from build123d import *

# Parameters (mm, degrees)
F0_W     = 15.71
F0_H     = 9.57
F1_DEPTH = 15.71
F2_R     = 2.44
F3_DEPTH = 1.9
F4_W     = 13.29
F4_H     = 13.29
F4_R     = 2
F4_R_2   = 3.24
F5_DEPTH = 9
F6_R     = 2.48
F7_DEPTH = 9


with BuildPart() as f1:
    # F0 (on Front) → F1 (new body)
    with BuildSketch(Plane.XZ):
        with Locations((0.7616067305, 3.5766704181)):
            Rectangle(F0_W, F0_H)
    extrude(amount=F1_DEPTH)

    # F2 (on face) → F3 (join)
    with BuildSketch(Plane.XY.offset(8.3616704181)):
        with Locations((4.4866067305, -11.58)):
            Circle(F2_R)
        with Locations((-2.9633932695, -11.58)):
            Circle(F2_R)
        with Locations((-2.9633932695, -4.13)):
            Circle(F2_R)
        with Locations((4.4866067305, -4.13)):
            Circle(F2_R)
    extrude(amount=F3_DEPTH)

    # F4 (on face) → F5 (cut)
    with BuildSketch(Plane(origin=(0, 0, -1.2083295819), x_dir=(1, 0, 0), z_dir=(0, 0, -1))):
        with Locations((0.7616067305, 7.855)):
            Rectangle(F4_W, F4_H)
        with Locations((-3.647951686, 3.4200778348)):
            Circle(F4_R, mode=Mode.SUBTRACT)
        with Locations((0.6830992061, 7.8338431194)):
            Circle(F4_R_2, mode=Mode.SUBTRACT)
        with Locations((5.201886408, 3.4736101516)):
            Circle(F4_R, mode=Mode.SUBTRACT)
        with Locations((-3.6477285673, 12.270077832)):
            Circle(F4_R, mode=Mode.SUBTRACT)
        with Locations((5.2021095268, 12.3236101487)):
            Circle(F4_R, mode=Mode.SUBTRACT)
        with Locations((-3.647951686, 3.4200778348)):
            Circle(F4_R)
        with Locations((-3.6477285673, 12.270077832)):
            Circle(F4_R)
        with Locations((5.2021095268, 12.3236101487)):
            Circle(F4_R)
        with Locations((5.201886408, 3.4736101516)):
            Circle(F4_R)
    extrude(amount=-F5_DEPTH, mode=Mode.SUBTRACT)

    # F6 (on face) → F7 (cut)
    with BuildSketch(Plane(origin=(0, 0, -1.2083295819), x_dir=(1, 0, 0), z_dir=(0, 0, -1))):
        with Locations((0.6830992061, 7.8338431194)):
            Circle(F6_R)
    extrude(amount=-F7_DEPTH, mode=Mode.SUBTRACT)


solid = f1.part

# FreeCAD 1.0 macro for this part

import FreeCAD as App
import Part
import Sketcher
from FreeCAD import Vector
Q = App.Units.Quantity

doc = App.newDocument("Part")
body = doc.addObject("PartDesign::Body", "Body")

# Sketch on XZ plane
sketch1 = body.newObject("Sketcher::SketchObject", "Sketch")
sketch1.AttachmentSupport = (doc.getObject("XZ_Plane"), [""])
sketch1.MapMode = "FlatFace"
sketch1.addGeometry(Part.LineSegment(Vector(-7, 8, 0), Vector(-7, -1, 0)), False)
sketch1.addGeometry(Part.LineSegment(Vector(-7, -1, 0), Vector(9, -1, 0)), False)
sketch1.addGeometry(Part.LineSegment(Vector(9, -1, 0), Vector(9, 8, 0)), False)
sketch1.addGeometry(Part.LineSegment(Vector(9, 8, 0), Vector(-7, 8, 0)), False)
sketch1.addConstraint(Sketcher.Constraint("Coincident", 0, 2, 1, 1))
sketch1.addConstraint(Sketcher.Constraint("Coincident", 1, 2, 2, 1))
sketch1.addConstraint(Sketcher.Constraint("Coincident", 2, 2, 3, 1))
sketch1.addConstraint(Sketcher.Constraint("Coincident", 3, 2, 0, 1))
sketch1.addConstraint(Sketcher.Constraint("Vertical", 0))
sketch1.addConstraint(Sketcher.Constraint("Horizontal", 1))
sketch1.addConstraint(Sketcher.Constraint("Vertical", 2))
sketch1.addConstraint(Sketcher.Constraint("Horizontal", 3))
sketch1.addConstraint(Sketcher.Constraint("DistanceX", 1, 1, 1, 2, Q("15.71 mm")))
sketch1.addConstraint(Sketcher.Constraint("DistanceY", 0, 2, 0, 1, Q("9.57 mm")))
sketch1.addConstraint(Sketcher.Constraint("DistanceY", 0, 2, -1, 1, Q("1.20833 mm")))
sketch1.addConstraint(Sketcher.Constraint("DistanceX", 0, 2, -1, 1, Q("7.093393 mm")))
pad1 = body.newObject("PartDesign::Pad", "Pad")
pad1.Profile = sketch1
pad1.Length = 15.71

# Sketch on XY plane
sketch2 = body.newObject("Sketcher::SketchObject", "Sketch001")
sketch2.AttachmentSupport = (doc.getObject("XY_Plane"), [""])
sketch2.MapMode = "FlatFace"
sketch2.AttachmentOffset = App.Placement(Vector(0, 0, 8.36167), App.Rotation())
sketch2.addGeometry(Part.Circle(Vector(4.5, -11.6, 0), Vector(0, 0, 1), 2.4), False)
sketch2.addGeometry(Part.Circle(Vector(-3, -11.6, 0), Vector(0, 0, 1), 2.4), False)
sketch2.addGeometry(Part.Circle(Vector(-3, -4.1, 0), Vector(0, 0, 1), 2.4), False)
sketch2.addGeometry(Part.Circle(Vector(4.5, -4.1, 0), Vector(0, 0, 1), 2.4), False)
sketch2.addConstraint(Sketcher.Constraint("Equal", 0, 1))
sketch2.addConstraint(Sketcher.Constraint("Equal", 1, 2))
sketch2.addConstraint(Sketcher.Constraint("Equal", 2, 3))
sketch2.addConstraint(Sketcher.Constraint("Horizontal", 0, 3, 1, 3))
sketch2.addConstraint(Sketcher.Constraint("Horizontal", 2, 3, 3, 3))
sketch2.addConstraint(Sketcher.Constraint("Vertical", 1, 3, 2, 3))
sketch2.addConstraint(Sketcher.Constraint("Vertical", 0, 3, 3, 3))
sketch2.addConstraint(Sketcher.Constraint("Diameter", 0, Q("4.88 mm")))
sketch2.addConstraint(Sketcher.Constraint("DistanceY", 0, 3, -1, 1, Q("11.58 mm")))
sketch2.addConstraint(Sketcher.Constraint("DistanceY", 2, 3, -1, 1, Q("4.13 mm")))
sketch2.addConstraint(Sketcher.Constraint("DistanceX", 1, 3, 0, 3, Q("7.45 mm")))
sketch2.addConstraint(Sketcher.Constraint("DistanceX", -1, 1, 0, 3, Q("4.486607 mm")))
pad2 = body.newObject("PartDesign::Pad", "Pad001")
pad2.Profile = sketch2
pad2.Length = 1.9

# Sketch on XY plane
sketch3 = body.newObject("Sketcher::SketchObject", "Sketch002")
sketch3.AttachmentSupport = (doc.getObject("XY_Plane"), [""])
sketch3.MapMode = "FlatFace"
sketch3.AttachmentOffset = App.Placement(Vector(0, 0, -1.20833), App.Rotation())
sketch3.addGeometry(Part.LineSegment(Vector(-5.9, -14.5, 0), Vector(-5.9, -1.2, 0)), False)
sketch3.addGeometry(Part.LineSegment(Vector(-5.9, -1.2, 0), Vector(7.4, -1.2, 0)), False)
sketch3.addGeometry(Part.LineSegment(Vector(7.4, -1.2, 0), Vector(7.4, -14.5, 0)), False)
sketch3.addGeometry(Part.LineSegment(Vector(7.4, -14.5, 0), Vector(-5.9, -14.5, 0)), False)
sketch3.addGeometry(Part.Circle(Vector(0.7, -7.8, 0), Vector(0, 0, 1), 3.2), False)
sketch3.addConstraint(Sketcher.Constraint("Coincident", 0, 2, 1, 1))
sketch3.addConstraint(Sketcher.Constraint("Coincident", 1, 2, 2, 1))
sketch3.addConstraint(Sketcher.Constraint("Coincident", 2, 2, 3, 1))
sketch3.addConstraint(Sketcher.Constraint("Coincident", 3, 2, 0, 1))
sketch3.addConstraint(Sketcher.Constraint("Vertical", 0))
sketch3.addConstraint(Sketcher.Constraint("Horizontal", 1))
sketch3.addConstraint(Sketcher.Constraint("Vertical", 2))
sketch3.addConstraint(Sketcher.Constraint("Horizontal", 3))
sketch3.addConstraint(Sketcher.Constraint("Equal", 3, 0))
sketch3.addConstraint(Sketcher.Constraint("Diameter", 4, Q("6.48 mm")))
sketch3.addConstraint(Sketcher.Constraint("DistanceX", 1, 1, 1, 2, Q("13.29 mm")))
sketch3.addConstraint(Sketcher.Constraint("DistanceY", 2, 2, -1, 1, Q("14.5 mm")))
sketch3.addConstraint(Sketcher.Constraint("DistanceX", -1, 1, 4, 3, Q("0.683099 mm")))
sketch3.addConstraint(Sketcher.Constraint("DistanceY", 4, 3, -1, 1, Q("7.833843 mm")))
sketch3.addConstraint(Sketcher.Constraint("DistanceX", 0, 2, -1, 1, Q("5.883393 mm")))
pocket1 = body.newObject("PartDesign::Pocket", "Pocket")
pocket1.Profile = sketch3
pocket1.Length = 9
pocket1.Reversed = True

# Sketch on XY plane
sketch4 = body.newObject("Sketcher::SketchObject", "Sketch003")
sketch4.AttachmentSupport = (doc.getObject("XY_Plane"), [""])
sketch4.MapMode = "FlatFace"
sketch4.AttachmentOffset = App.Placement(Vector(0, 0, -1.20833), App.Rotation())
sketch4.addGeometry(Part.Circle(Vector(0.7, -7.8, 0), Vector(0, 0, 1), 2.5), False)
sketch4.addConstraint(Sketcher.Constraint("Diameter", 0, Q("4.96 mm")))
sketch4.addConstraint(Sketcher.Constraint("DistanceX", -1, 1, 0, 3, Q("0.683099 mm")))
sketch4.addConstraint(Sketcher.Constraint("DistanceY", 0, 3, -1, 1, Q("7.833843 mm")))
pocket2 = body.newObject("PartDesign::Pocket", "Pocket001")
pocket2.Profile = sketch4
pocket2.Length = 9
pocket2.Reversed = True

doc.recompute()
